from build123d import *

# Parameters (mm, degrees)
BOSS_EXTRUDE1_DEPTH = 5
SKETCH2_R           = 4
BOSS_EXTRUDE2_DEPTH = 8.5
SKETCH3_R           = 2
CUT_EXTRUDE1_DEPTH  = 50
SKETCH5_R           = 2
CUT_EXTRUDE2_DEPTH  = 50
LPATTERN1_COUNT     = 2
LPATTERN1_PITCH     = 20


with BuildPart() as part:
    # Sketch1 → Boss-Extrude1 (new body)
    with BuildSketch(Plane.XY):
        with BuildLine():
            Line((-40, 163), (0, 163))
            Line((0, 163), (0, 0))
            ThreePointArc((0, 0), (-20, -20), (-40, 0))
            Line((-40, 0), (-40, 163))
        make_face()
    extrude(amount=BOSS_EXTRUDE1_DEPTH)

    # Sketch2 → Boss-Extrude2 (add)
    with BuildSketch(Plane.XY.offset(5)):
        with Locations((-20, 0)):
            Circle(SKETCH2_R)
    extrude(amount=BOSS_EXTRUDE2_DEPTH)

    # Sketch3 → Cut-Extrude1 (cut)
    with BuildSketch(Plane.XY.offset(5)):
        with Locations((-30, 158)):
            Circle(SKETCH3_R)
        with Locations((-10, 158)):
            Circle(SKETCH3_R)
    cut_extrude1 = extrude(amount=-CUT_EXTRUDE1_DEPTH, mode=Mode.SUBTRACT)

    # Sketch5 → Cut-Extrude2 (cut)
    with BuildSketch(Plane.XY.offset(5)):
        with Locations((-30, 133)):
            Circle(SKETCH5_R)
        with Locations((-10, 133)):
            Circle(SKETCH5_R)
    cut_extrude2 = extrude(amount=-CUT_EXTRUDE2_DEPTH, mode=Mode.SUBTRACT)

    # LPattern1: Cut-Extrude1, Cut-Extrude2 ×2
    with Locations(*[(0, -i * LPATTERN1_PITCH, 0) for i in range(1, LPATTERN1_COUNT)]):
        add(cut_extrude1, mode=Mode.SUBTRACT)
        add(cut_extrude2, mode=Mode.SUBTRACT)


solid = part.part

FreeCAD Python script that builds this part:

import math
import FreeCAD as App
import Part
import Sketcher

doc = App.newDocument("Part")
params = doc.addObject("Spreadsheet::Sheet", "Params")
for row, (alias, value) in enumerate([
    ("sketch1_radius", "20 mm"),
    ("sketch1_height", "163 mm"),
    ("pad1_length", "5 mm"),
    ("sketch2_diameter", "8 mm"),
    ("pad2_length", "8.5 mm"),
    ("sketch3_diameter", "4 mm"),
    ("pocket1_length", "50 mm"),
    ("sketch4_diameter", "4 mm"),
    ("pocket2_length", "50 mm"),
    ("linearpattern_pitch", "20 mm"),
], start=1):
    params.set(f"A{row}", alias)
    params.set(f"B{row}", "=" + value)
    params.setAlias(f"B{row}", alias)

body = doc.addObject("PartDesign::Body", "Body")

# Sketch on XY plane
sketch1 = body.newObject("Sketcher::SketchObject", "Sketch")
sketch1.AttachmentSupport = (doc.getObject("XY_Plane"), [""])
sketch1.MapMode = "FlatFace"
sketch1.addGeometry([
    Part.LineSegment(App.Vector(0, 163, 0), App.Vector(-40, 163, 0)),
    Part.LineSegment(App.Vector(-40, 163, 0), App.Vector(-40, 0, 0)),
    Part.ArcOfCircle(Part.Circle(App.Vector(-20, 0, 0), App.Vector(0, 0, 1), 20), math.radians(180), math.radians(360)),
    Part.LineSegment(App.Vector(0, 0, 0), App.Vector(0, 163, 0)),
], False)
sketch1.addConstraint([
    Sketcher.Constraint("Coincident", 0, 2, 1, 1),
    Sketcher.Constraint("Tangent", 1, 2, 2, 1),
    Sketcher.Constraint("Tangent", 2, 2, 3, 1),
    Sketcher.Constraint("Coincident", 3, 2, 0, 1),
    Sketcher.Constraint("Horizontal", 0),
    Sketcher.Constraint("Vertical", 1),
    Sketcher.Constraint("Vertical", 3),
    Sketcher.Constraint("Coincident", 2, 2, -1, 1),
    Sketcher.Constraint("Radius", 2, 20.0),
    Sketcher.Constraint("DistanceY", 1, 2, 1, 1, 163.0),
])
sketch1.setExpression("Constraints[8]", "Params.sketch1_radius")
sketch1.setExpression("Constraints[9]", "Params.sketch1_height")
pad1 = body.newObject("PartDesign::Pad", "Pad")
pad1.Profile = sketch1
pad1.setExpression("Length", "Params.pad1_length")

# Sketch on XY plane
sketch2 = body.newObject("Sketcher::SketchObject", "Sketch001")
sketch2.AttachmentSupport = (doc.getObject("XY_Plane"), [""])
sketch2.MapMode = "FlatFace"
sketch2.AttachmentOffset = App.Placement(App.Vector(0, 0, 5), App.Rotation())
sketch2.addGeometry(Part.Circle(App.Vector(-20, 0, 0), App.Vector(0, 0, 1), 4), False)
sketch2.addConstraint([
    Sketcher.Constraint("PointOnObject", 0, 3, -1),
    Sketcher.Constraint("Diameter", 0, 8.0),
    Sketcher.Constraint("DistanceX", 0, 3, -1, 1, 20.0),
])
sketch2.setExpression("Constraints[1]", "Params.sketch2_diameter")
pad2 = body.newObject("PartDesign::Pad", "Pad001")
pad2.Profile = sketch2
pad2.setExpression("Length", "Params.pad2_length")

# Sketch on XY plane
sketch3 = body.newObject("Sketcher::SketchObject", "Sketch002")
sketch3.AttachmentSupport = (doc.getObject("XY_Plane"), [""])
sketch3.MapMode = "FlatFace"
sketch3.AttachmentOffset = App.Placement(App.Vector(0, 0, 5), App.Rotation())
sketch3.addGeometry([
    Part.Circle(App.Vector(-30, 158, 0), App.Vector(0, 0, 1), 2),
    Part.Circle(App.Vector(-10, 158, 0), App.Vector(0, 0, 1), 2),
], False)
sketch3.addConstraint([
    Sketcher.Constraint("Equal", 0, 1),
    Sketcher.Constraint("Horizontal", 0, 3, 1, 3),
    Sketcher.Constraint("Diameter", 0, 4.0),
    Sketcher.Constraint("DistanceX", 0, 3, -1, 1, 30.0),
    Sketcher.Constraint("DistanceY", -1, 1, 0, 3, 158.0),
    Sketcher.Constraint("DistanceX", 1, 3, -1, 1, 10.0),
])
sketch3.setExpression("Constraints[2]", "Params.sketch3_diameter")
pocket1 = body.newObject("PartDesign::Pocket", "Pocket")
pocket1.Profile = sketch3
pocket1.setExpression("Length", "Params.pocket1_length")

# Sketch on XY plane
sketch4 = body.newObject("Sketcher::SketchObject", "Sketch003")
sketch4.AttachmentSupport = (doc.getObject("XY_Plane"), [""])
sketch4.MapMode = "FlatFace"
sketch4.AttachmentOffset = App.Placement(App.Vector(0, 0, 5), App.Rotation())
sketch4.addGeometry([
    Part.Circle(App.Vector(-30, 133, 0), App.Vector(0, 0, 1), 2),
    Part.Circle(App.Vector(-10, 133, 0), App.Vector(0, 0, 1), 2),
], False)
sketch4.addConstraint([
    Sketcher.Constraint("Equal", 0, 1),
    Sketcher.Constraint("Horizontal", 0, 3, 1, 3),
    Sketcher.Constraint("Diameter", 0, 4.0),
    Sketcher.Constraint("DistanceX", 0, 3, -1, 1, 30.0),
    Sketcher.Constraint("DistanceY", -1, 1, 0, 3, 133.0),
    Sketcher.Constraint("DistanceX", 1, 3, -1, 1, 10.0),
])
sketch4.setExpression("Constraints[2]", "Params.sketch4_diameter")
pocket2 = body.newObject("PartDesign::Pocket", "Pocket001")
pocket2.Profile = sketch4
pocket2.setExpression("Length", "Params.pocket2_length")
doc.recompute()

linearpattern = body.newObject("PartDesign::LinearPattern", "LinearPattern")
linearpattern.Originals = [pocket1, pocket2]
linearpattern.Direction = (doc.getObject("Y_Axis"), [""])
linearpattern.Mode = "offset"
linearpattern.setExpression("Offset", "Params.linearpattern_pitch")
linearpattern.Occurrences = 2
linearpattern.Reversed = True
body.Tip = linearpattern

doc.recompute()
